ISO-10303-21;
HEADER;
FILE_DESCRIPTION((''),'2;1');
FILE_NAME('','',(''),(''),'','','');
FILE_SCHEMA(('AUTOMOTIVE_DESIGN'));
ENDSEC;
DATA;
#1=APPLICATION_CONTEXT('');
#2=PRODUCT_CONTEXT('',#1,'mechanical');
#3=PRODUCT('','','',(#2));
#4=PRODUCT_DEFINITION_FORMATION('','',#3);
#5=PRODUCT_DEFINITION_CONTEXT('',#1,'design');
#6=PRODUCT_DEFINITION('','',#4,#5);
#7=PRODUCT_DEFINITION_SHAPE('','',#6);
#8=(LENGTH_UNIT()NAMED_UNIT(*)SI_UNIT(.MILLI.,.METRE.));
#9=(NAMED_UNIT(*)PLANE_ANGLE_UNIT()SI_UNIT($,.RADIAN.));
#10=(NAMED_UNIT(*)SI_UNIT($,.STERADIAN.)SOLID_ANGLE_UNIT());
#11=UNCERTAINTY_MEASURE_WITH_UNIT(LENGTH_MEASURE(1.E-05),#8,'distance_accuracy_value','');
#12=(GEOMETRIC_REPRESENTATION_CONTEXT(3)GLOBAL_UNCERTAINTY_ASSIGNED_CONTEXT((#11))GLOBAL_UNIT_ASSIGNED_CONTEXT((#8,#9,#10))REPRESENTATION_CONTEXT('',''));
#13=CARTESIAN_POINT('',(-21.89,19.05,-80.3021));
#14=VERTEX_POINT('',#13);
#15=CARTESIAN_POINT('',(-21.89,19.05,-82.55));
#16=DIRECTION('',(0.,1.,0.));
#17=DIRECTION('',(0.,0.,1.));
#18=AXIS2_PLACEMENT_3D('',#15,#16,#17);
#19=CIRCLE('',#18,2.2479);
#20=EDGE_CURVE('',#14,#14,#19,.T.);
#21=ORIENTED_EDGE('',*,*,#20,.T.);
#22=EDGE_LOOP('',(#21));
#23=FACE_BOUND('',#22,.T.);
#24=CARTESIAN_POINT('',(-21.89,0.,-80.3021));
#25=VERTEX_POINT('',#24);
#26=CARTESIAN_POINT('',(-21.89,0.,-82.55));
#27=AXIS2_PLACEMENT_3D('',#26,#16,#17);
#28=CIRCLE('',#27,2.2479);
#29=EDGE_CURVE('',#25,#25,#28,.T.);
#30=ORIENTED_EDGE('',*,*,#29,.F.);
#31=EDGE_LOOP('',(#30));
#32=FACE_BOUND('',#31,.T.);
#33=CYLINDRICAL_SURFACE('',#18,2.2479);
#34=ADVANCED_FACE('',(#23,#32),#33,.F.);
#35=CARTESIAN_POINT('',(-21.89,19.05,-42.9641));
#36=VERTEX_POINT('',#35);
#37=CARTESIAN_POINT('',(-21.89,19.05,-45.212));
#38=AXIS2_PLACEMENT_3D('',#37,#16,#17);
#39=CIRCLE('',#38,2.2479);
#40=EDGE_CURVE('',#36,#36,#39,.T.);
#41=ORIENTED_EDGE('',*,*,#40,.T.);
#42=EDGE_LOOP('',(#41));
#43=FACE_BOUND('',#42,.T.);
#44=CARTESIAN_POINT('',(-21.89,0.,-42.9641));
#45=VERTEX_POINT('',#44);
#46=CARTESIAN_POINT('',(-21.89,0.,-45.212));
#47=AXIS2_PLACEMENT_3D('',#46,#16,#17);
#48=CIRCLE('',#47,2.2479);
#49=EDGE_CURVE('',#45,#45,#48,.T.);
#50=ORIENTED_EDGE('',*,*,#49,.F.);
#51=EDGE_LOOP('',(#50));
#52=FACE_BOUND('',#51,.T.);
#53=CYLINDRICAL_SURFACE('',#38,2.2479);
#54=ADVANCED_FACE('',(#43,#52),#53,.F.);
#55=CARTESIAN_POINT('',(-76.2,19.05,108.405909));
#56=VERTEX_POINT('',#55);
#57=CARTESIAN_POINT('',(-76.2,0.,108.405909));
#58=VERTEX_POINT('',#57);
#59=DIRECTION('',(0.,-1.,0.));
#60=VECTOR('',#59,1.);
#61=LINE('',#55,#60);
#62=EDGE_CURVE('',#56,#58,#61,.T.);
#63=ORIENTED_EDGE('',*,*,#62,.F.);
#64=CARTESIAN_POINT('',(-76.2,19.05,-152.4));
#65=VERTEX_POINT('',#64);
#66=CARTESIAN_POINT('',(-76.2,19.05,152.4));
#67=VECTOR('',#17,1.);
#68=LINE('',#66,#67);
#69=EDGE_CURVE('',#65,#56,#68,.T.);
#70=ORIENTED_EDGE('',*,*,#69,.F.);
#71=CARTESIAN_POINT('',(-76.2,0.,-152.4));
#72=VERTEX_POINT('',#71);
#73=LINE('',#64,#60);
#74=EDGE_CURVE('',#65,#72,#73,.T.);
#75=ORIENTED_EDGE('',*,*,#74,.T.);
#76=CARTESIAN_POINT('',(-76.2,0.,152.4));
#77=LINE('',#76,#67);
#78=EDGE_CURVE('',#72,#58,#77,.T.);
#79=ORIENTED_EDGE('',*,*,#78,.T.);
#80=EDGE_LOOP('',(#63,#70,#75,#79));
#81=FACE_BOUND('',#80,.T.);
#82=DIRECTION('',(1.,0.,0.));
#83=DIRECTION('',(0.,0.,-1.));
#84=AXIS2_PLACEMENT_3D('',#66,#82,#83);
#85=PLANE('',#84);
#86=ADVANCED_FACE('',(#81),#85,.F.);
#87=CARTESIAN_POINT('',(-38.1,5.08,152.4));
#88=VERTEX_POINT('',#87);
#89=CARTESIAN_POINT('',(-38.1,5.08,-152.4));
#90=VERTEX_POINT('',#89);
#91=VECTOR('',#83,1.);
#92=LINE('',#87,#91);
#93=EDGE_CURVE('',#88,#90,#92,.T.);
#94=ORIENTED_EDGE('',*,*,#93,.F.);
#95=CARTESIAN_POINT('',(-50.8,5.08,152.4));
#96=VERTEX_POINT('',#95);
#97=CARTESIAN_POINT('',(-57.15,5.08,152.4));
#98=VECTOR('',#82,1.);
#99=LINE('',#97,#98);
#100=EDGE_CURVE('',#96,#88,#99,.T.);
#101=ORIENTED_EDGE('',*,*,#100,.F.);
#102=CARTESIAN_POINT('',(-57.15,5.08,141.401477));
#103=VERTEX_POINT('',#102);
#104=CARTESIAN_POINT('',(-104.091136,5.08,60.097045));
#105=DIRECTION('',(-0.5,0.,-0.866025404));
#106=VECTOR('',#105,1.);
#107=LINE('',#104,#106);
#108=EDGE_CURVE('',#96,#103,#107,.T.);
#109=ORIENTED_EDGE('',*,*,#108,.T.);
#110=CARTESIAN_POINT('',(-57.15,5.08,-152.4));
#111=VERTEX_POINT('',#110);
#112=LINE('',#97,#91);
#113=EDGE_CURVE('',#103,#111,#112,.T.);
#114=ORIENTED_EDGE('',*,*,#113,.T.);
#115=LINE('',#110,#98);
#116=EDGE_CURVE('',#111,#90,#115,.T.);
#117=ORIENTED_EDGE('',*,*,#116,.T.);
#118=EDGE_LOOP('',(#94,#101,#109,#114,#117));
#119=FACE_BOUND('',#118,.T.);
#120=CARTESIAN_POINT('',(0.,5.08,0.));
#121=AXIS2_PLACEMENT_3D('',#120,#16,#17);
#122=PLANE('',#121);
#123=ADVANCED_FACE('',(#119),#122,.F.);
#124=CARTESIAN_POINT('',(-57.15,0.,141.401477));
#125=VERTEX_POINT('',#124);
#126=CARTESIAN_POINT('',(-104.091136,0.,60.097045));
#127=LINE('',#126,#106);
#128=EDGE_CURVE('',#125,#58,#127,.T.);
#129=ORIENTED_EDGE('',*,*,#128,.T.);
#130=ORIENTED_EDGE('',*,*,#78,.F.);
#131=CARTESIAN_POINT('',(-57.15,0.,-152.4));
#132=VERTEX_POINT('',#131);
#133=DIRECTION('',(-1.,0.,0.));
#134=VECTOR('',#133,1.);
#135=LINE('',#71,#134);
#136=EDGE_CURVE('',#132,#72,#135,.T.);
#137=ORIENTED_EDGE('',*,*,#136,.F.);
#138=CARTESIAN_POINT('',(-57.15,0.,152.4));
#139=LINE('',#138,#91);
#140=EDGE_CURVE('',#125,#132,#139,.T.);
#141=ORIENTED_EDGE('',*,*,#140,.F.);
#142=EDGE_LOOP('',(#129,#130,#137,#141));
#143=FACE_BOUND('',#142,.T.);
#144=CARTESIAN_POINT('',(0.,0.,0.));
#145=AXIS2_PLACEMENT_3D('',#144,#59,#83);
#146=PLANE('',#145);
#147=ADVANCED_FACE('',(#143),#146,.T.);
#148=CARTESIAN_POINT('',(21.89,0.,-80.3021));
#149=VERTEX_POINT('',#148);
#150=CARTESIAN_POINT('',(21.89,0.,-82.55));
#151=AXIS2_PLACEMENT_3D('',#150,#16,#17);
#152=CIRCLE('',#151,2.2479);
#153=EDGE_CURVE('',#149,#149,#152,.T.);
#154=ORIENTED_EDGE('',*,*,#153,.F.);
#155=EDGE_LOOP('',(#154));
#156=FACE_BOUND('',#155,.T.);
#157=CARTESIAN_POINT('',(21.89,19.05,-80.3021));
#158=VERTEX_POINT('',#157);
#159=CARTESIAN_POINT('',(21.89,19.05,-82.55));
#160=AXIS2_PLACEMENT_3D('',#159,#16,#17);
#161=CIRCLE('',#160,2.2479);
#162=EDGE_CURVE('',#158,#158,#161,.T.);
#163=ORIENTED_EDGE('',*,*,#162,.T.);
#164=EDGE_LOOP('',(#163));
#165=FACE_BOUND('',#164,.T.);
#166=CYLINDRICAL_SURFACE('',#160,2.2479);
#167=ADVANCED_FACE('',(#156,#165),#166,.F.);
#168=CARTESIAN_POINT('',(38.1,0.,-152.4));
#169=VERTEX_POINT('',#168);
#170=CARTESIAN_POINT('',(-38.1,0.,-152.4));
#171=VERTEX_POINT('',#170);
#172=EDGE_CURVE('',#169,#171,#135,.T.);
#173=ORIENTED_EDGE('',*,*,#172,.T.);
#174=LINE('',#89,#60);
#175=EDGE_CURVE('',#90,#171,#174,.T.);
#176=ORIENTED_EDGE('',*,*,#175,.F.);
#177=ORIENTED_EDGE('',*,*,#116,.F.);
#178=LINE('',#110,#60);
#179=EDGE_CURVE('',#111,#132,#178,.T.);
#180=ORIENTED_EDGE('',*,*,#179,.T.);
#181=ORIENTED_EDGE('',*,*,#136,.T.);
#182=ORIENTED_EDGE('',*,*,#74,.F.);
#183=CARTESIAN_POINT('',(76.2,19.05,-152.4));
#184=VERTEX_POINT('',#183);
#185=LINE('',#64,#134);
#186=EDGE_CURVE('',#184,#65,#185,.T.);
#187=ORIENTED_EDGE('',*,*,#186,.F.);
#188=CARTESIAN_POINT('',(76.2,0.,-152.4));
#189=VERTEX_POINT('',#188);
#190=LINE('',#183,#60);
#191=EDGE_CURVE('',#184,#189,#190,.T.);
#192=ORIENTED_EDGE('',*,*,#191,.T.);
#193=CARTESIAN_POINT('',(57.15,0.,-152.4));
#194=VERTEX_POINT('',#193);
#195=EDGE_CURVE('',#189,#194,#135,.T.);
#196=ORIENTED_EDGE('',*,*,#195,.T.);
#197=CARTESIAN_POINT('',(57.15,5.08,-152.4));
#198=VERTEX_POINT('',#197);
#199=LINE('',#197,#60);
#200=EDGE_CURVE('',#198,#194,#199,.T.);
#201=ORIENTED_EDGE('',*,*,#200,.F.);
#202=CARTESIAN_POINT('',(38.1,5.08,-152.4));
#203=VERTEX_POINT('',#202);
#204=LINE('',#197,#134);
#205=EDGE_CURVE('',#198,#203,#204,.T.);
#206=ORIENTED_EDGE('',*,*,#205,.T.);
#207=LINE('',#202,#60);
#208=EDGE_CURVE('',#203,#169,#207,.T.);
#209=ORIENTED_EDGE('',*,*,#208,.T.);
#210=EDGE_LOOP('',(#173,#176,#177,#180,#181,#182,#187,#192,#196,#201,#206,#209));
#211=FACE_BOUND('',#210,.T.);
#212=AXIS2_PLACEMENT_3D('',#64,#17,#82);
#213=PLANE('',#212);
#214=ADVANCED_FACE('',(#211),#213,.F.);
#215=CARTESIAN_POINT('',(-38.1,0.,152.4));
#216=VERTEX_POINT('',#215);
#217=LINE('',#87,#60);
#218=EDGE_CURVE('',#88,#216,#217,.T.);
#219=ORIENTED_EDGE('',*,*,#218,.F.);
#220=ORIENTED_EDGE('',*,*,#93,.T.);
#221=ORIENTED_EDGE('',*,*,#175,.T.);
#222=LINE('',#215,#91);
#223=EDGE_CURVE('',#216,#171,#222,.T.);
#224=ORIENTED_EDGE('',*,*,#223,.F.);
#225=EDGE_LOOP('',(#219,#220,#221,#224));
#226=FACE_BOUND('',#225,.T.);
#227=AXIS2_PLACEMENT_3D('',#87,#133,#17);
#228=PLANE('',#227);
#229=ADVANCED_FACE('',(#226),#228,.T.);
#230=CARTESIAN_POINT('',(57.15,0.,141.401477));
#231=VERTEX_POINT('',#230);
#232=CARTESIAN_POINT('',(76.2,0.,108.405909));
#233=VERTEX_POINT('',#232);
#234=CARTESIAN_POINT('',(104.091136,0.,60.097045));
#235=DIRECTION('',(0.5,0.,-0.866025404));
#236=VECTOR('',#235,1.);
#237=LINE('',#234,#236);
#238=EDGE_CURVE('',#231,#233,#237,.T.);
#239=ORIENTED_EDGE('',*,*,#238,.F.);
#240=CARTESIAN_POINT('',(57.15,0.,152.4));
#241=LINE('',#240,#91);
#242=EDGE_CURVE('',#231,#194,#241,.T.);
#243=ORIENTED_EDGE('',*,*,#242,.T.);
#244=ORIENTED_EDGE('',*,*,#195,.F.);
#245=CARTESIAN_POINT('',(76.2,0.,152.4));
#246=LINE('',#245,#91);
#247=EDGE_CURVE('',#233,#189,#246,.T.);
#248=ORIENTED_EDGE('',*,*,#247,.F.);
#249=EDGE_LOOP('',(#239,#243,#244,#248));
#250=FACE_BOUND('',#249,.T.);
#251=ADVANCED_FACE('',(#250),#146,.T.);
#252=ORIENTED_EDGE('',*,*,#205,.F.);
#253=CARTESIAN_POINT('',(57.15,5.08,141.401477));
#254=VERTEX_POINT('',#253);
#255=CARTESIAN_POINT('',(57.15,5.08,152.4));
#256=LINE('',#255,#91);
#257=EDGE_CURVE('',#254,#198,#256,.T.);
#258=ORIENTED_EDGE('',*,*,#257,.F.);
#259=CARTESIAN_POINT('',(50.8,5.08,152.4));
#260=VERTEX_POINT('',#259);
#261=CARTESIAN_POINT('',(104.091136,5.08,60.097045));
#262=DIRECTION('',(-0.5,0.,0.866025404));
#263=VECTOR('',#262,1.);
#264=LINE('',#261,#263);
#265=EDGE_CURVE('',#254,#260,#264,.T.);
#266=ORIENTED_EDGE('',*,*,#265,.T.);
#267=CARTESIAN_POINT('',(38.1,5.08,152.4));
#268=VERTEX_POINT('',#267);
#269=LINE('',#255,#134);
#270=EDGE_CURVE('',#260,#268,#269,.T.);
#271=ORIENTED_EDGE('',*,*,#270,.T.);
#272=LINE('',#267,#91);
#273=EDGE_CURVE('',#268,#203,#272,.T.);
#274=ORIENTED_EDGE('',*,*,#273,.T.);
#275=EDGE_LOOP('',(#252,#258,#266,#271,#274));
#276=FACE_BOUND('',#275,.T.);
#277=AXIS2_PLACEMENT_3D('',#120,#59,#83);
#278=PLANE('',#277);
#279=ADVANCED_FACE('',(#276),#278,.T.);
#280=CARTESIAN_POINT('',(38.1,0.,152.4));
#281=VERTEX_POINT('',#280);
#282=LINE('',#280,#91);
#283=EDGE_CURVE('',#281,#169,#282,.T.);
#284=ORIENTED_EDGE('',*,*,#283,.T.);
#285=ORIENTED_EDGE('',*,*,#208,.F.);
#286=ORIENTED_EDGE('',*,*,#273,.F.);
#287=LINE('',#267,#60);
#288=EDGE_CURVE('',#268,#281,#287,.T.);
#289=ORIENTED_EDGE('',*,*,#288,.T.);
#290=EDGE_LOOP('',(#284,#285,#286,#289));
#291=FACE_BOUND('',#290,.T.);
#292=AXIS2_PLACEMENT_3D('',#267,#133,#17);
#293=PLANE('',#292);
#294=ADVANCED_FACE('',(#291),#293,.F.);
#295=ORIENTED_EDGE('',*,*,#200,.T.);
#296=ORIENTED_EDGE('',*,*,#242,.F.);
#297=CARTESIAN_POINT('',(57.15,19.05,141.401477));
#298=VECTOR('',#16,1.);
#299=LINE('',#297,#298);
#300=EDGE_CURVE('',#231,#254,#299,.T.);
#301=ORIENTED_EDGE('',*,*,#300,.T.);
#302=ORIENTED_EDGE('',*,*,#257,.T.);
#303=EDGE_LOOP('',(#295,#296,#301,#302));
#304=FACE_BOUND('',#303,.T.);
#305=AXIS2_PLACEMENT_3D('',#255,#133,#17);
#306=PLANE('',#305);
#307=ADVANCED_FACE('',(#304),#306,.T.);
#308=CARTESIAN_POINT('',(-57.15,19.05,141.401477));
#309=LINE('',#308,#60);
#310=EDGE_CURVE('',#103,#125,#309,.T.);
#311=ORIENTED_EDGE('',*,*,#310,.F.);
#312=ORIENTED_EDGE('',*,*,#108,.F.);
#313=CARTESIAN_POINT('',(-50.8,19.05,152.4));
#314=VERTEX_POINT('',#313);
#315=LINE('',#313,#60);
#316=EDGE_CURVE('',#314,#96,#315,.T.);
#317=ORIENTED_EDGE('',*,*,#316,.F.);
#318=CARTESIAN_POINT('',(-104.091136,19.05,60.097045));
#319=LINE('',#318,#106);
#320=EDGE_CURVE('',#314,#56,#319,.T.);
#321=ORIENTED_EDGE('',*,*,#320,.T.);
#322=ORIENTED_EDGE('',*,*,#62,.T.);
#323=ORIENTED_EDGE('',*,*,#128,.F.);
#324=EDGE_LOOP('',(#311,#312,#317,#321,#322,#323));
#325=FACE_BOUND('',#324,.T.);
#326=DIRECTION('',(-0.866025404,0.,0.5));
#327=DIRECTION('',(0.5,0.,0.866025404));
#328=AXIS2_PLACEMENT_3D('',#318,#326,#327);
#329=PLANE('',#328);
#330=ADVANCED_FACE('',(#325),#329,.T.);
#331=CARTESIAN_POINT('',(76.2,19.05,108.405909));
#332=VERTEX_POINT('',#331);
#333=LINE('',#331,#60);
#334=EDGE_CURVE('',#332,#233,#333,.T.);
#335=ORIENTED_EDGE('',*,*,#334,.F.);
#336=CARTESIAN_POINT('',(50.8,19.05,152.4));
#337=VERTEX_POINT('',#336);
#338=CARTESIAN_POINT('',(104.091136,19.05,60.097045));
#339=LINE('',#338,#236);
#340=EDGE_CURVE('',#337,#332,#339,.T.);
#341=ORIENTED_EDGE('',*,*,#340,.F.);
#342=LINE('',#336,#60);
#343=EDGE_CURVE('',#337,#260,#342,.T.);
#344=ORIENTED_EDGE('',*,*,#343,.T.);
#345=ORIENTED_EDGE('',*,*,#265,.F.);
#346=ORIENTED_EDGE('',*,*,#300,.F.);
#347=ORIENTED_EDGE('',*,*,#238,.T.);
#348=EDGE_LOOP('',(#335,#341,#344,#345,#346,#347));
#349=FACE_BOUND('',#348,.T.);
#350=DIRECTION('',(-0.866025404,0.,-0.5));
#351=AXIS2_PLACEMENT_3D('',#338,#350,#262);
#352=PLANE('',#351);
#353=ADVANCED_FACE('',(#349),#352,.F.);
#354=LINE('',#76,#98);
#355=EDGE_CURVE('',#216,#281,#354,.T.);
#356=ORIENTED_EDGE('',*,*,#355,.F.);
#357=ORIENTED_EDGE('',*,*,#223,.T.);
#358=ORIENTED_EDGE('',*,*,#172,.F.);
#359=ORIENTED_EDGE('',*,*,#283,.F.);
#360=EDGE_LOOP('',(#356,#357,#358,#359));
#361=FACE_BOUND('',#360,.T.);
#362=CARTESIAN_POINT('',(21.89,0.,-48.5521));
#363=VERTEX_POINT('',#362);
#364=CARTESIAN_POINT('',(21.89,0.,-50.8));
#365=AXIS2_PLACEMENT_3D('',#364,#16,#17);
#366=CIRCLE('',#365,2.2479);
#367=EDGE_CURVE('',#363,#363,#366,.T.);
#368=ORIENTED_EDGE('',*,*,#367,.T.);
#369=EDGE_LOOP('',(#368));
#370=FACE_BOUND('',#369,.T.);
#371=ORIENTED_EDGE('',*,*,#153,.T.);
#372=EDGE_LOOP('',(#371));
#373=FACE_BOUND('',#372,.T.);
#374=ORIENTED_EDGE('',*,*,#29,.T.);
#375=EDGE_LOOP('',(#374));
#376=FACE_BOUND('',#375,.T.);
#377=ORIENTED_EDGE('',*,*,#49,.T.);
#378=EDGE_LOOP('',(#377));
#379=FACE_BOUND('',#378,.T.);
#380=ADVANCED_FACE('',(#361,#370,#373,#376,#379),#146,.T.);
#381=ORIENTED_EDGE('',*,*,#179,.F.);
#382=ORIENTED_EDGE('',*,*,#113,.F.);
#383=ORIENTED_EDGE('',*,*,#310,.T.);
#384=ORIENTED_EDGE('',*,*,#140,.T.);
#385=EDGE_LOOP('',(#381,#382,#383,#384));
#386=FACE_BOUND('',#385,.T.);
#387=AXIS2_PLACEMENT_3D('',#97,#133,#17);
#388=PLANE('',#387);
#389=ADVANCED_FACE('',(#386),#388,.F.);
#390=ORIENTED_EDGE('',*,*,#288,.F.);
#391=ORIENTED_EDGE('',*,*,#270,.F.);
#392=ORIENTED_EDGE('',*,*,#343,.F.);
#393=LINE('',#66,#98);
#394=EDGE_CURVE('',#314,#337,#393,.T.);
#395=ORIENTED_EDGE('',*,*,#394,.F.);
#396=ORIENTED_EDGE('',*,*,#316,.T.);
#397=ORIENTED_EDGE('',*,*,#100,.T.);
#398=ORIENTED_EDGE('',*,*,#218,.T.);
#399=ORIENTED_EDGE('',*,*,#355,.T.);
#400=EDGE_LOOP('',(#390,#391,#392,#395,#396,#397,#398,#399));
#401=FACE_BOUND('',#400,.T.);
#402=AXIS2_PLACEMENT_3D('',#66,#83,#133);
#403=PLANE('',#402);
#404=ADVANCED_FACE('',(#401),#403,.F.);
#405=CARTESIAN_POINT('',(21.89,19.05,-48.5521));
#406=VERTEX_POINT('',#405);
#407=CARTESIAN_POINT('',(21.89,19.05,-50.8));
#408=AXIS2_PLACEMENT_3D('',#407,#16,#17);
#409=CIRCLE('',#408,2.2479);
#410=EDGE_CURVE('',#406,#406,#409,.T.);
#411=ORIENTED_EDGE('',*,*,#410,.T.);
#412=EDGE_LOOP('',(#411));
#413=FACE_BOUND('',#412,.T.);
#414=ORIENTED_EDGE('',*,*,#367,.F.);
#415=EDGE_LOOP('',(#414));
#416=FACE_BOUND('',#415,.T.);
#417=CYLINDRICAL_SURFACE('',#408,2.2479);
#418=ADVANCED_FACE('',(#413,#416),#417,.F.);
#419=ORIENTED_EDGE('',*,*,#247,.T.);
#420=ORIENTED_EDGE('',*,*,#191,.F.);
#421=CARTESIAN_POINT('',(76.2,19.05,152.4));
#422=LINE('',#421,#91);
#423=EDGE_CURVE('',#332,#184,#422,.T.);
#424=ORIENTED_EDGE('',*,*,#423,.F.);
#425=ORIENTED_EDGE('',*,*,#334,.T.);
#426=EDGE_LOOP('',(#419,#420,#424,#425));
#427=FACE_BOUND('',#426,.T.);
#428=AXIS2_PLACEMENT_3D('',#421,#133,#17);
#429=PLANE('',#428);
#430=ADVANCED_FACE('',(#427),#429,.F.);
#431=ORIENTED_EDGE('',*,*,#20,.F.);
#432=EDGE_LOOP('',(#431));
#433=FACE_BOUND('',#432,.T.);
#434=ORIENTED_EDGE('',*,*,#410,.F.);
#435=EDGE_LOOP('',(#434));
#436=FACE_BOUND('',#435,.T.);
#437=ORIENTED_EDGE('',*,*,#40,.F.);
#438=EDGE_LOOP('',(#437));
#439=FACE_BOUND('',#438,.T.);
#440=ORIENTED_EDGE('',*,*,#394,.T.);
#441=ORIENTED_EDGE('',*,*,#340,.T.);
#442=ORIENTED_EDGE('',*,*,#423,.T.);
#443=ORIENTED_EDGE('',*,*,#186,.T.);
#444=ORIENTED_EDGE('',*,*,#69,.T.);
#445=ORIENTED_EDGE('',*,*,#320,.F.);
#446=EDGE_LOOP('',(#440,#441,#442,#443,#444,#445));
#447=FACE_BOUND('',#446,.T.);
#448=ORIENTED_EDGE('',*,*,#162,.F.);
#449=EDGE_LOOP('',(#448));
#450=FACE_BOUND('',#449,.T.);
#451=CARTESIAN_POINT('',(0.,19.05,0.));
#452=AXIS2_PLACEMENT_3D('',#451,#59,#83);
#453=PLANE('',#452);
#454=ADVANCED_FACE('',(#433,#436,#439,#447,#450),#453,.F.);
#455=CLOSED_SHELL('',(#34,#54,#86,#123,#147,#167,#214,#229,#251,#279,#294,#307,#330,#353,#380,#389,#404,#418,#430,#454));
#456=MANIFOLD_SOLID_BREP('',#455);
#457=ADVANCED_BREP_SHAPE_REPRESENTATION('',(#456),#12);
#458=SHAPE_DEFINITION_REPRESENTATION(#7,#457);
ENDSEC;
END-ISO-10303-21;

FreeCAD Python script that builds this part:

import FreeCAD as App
import Part
import Sketcher

V = App.Vector
Q = App.Units.Quantity


def add_polygon(sketch, points):
    """Adds a closed chain of lines whose ends are joined by coincident constraints."""
    first, n = sketch.GeometryCount, len(points)
    for a, b in zip(points, points[1:] + points[:1]):
        sketch.addGeometry(Part.LineSegment(App.Vector(*a, 0), App.Vector(*b, 0)), False)
    for i in range(n):
        sketch.addConstraint(Sketcher.Constraint("Coincident", first + i, 2, first + (i + 1) % n, 1))

doc = App.newDocument("Part")
body = doc.addObject("PartDesign::Body", "Body")

# Sketch on XZ plane
sketch1 = doc.addObject("Sketcher::SketchObject", "Sketch")
body.addObject(sketch1)
sketch1.AttachmentSupport = (doc.XZ_Plane, [""])
sketch1.MapMode = "FlatFace"
add_polygon(sketch1, [(-76.2, -152.4), (-76.2, 152.4), (76.2, 152.4), (76.2, -152.4)])  # lines 0-3
sketch1.addConstraint([
    Sketcher.Constraint("Vertical", 0),
    Sketcher.Constraint("Horizontal", 1),
    Sketcher.Constraint("Vertical", 2),
    Sketcher.Constraint("Horizontal", 3),
    Sketcher.Constraint("Symmetric", 0, 2, 2, 2, -1, 1),
    Sketcher.Constraint("DistanceX", 1, 1, 1, 2, Q("6 in")),
    Sketcher.Constraint("DistanceY", 0, 1, 0, 2, Q("12 in")),
])
pad1 = doc.addObject("PartDesign::Pad", "Pad")
body.addObject(pad1)
pad1.Profile = sketch1
pad1.Length = Q("0.75 in")
pad1.Reversed = True

# Sketch on XZ plane
sketch2 = doc.addObject("Sketcher::SketchObject", "Sketch001")
body.addObject(sketch2)
sketch2.AttachmentSupport = (doc.XZ_Plane, [""])
sketch2.MapMode = "FlatFace"
sketch2.AttachmentOffset = App.Placement(V(0, 0, -0.75 * 25.4), App.Rotation())
sketch2.addGeometry([
    Part.Circle(V(-21.89, -82.55, 0), V(0, 0, 1), 2.2479),
    Part.Circle(V(21.89, -82.55, 0), V(0, 0, 1), 2.2479),
    Part.Circle(V(-21.89, -45.212, 0), V(0, 0, 1), 2.2479),
    Part.Circle(V(21.89, -50.8, 0), V(0, 0, 1), 2.2479),
], False)
sketch2.addConstraint([
    Sketcher.Constraint("Equal", 0, 1),
    Sketcher.Constraint("Equal", 1, 2),
    Sketcher.Constraint("Equal", 2, 3),
    Sketcher.Constraint("Symmetric", 0, 3, 1, 3, -2),
    Sketcher.Constraint("Vertical", 0, 3, 2, 3),
    Sketcher.Constraint("Vertical", 1, 3, 3, 3),
    Sketcher.Constraint("Diameter", 0, Q("0.177 in")),
    Sketcher.Constraint("DistanceY", 3, 3, -1, 1, Q("2 in")),
    Sketcher.Constraint("DistanceY", 0, 3, -1, 1, Q("3.25 in")),
    Sketcher.Constraint("DistanceY", 2, 3, -1, 1, Q("1.78 in")),
    Sketcher.Constraint("DistanceX", 0, 3, -1, 1, 21.89),
])
doc.recompute()
hole = doc.addObject("PartDesign::Hole", "Hole")
body.addObject(hole)
hole.Profile = sketch2
hole.ThreadType = "None"
hole.Diameter = Q("0.177 in")
hole.DepthType = "ThroughAll"
hole.Reversed = True

# Sketch on XZ plane
sketch3 = doc.addObject("Sketcher::SketchObject", "Sketch002")
body.addObject(sketch3)
sketch3.AttachmentSupport = (doc.XZ_Plane, [""])
sketch3.MapMode = "FlatFace"
add_polygon(sketch3, [(76.2, 152.4), (50.8, 152.4), (76.2, 108.405909)])  # lines 0-2
add_polygon(sketch3, [(-76.2, 108.405909), (-50.8, 152.4), (-76.2, 152.4)])  # lines 3-5
sketch3.addConstraint([
    Sketcher.Constraint("Horizontal", 0),
    Sketcher.Constraint("Vertical", 2),
    Sketcher.Constraint("Horizontal", 4),
    Sketcher.Constraint("Vertical", 5),
    Sketcher.Constraint("Symmetric", 0, 2, 3, 2, -2),
    Sketcher.Constraint("Symmetric", 1, 2, 5, 2, -2),
    Sketcher.Constraint("DistanceX", 0, 2, 0, 1, Q("1 in")),
    Sketcher.Constraint("Distance", 1, Q("2 in")),
    Sketcher.Constraint("DistanceX", -1, 1, 0, 2, Q("2 in")),
    Sketcher.Constraint("DistanceY", -1, 1, 0, 2, Q("6 in")),
])
pocket1 = doc.addObject("PartDesign::Pocket", "Pocket")
body.addObject(pocket1)
pocket1.Profile = sketch3
pocket1.Type = "ThroughAll"

# Sketch on XZ plane
sketch4 = doc.addObject("Sketcher::SketchObject", "Sketch003")
body.addObject(sketch4)
sketch4.AttachmentSupport = (doc.XZ_Plane, [""])
sketch4.MapMode = "FlatFace"
add_polygon(sketch4, [(38.1, 152.4), (38.1, -152.4), (57.15, -152.4), (57.15, 152.4)])  # lines 0-3
add_polygon(sketch4, [(-57.15, 152.4), (-57.15, -152.4), (-38.1, -152.4), (-38.1, 152.4)])  # lines 4-7
sketch4.addConstraint([
    Sketcher.Constraint("Vertical", 0),
    Sketcher.Constraint("Horizontal", 1),
    Sketcher.Constraint("Vertical", 2),
    Sketcher.Constraint("Horizontal", 3),
    Sketcher.Constraint("Vertical", 4),
    Sketcher.Constraint("Horizontal", 5),
    Sketcher.Constraint("Vertical", 6),
    Sketcher.Constraint("Horizontal", 7),
    Sketcher.Constraint("Symmetric", 2, 2, 4, 2, -1, 1),
    Sketcher.Constraint("Symmetric", 0, 2, 6, 2, -1, 1),
    Sketcher.Constraint("Horizontal", 1, 2, 4, 2),
    Sketcher.Constraint("DistanceY", 0, 2, 0, 1, Q("12 in")),
    Sketcher.Constraint("DistanceX", 5, 2, 0, 2, Q("3 in")),
    Sketcher.Constraint("DistanceX", 1, 1, 1, 2, Q("0.75 in")),
])
pocket2 = doc.addObject("PartDesign::Pocket", "Pocket001")
body.addObject(pocket2)
pocket2.Profile = sketch4
pocket2.Length = Q("0.2 in")

doc.recompute()
